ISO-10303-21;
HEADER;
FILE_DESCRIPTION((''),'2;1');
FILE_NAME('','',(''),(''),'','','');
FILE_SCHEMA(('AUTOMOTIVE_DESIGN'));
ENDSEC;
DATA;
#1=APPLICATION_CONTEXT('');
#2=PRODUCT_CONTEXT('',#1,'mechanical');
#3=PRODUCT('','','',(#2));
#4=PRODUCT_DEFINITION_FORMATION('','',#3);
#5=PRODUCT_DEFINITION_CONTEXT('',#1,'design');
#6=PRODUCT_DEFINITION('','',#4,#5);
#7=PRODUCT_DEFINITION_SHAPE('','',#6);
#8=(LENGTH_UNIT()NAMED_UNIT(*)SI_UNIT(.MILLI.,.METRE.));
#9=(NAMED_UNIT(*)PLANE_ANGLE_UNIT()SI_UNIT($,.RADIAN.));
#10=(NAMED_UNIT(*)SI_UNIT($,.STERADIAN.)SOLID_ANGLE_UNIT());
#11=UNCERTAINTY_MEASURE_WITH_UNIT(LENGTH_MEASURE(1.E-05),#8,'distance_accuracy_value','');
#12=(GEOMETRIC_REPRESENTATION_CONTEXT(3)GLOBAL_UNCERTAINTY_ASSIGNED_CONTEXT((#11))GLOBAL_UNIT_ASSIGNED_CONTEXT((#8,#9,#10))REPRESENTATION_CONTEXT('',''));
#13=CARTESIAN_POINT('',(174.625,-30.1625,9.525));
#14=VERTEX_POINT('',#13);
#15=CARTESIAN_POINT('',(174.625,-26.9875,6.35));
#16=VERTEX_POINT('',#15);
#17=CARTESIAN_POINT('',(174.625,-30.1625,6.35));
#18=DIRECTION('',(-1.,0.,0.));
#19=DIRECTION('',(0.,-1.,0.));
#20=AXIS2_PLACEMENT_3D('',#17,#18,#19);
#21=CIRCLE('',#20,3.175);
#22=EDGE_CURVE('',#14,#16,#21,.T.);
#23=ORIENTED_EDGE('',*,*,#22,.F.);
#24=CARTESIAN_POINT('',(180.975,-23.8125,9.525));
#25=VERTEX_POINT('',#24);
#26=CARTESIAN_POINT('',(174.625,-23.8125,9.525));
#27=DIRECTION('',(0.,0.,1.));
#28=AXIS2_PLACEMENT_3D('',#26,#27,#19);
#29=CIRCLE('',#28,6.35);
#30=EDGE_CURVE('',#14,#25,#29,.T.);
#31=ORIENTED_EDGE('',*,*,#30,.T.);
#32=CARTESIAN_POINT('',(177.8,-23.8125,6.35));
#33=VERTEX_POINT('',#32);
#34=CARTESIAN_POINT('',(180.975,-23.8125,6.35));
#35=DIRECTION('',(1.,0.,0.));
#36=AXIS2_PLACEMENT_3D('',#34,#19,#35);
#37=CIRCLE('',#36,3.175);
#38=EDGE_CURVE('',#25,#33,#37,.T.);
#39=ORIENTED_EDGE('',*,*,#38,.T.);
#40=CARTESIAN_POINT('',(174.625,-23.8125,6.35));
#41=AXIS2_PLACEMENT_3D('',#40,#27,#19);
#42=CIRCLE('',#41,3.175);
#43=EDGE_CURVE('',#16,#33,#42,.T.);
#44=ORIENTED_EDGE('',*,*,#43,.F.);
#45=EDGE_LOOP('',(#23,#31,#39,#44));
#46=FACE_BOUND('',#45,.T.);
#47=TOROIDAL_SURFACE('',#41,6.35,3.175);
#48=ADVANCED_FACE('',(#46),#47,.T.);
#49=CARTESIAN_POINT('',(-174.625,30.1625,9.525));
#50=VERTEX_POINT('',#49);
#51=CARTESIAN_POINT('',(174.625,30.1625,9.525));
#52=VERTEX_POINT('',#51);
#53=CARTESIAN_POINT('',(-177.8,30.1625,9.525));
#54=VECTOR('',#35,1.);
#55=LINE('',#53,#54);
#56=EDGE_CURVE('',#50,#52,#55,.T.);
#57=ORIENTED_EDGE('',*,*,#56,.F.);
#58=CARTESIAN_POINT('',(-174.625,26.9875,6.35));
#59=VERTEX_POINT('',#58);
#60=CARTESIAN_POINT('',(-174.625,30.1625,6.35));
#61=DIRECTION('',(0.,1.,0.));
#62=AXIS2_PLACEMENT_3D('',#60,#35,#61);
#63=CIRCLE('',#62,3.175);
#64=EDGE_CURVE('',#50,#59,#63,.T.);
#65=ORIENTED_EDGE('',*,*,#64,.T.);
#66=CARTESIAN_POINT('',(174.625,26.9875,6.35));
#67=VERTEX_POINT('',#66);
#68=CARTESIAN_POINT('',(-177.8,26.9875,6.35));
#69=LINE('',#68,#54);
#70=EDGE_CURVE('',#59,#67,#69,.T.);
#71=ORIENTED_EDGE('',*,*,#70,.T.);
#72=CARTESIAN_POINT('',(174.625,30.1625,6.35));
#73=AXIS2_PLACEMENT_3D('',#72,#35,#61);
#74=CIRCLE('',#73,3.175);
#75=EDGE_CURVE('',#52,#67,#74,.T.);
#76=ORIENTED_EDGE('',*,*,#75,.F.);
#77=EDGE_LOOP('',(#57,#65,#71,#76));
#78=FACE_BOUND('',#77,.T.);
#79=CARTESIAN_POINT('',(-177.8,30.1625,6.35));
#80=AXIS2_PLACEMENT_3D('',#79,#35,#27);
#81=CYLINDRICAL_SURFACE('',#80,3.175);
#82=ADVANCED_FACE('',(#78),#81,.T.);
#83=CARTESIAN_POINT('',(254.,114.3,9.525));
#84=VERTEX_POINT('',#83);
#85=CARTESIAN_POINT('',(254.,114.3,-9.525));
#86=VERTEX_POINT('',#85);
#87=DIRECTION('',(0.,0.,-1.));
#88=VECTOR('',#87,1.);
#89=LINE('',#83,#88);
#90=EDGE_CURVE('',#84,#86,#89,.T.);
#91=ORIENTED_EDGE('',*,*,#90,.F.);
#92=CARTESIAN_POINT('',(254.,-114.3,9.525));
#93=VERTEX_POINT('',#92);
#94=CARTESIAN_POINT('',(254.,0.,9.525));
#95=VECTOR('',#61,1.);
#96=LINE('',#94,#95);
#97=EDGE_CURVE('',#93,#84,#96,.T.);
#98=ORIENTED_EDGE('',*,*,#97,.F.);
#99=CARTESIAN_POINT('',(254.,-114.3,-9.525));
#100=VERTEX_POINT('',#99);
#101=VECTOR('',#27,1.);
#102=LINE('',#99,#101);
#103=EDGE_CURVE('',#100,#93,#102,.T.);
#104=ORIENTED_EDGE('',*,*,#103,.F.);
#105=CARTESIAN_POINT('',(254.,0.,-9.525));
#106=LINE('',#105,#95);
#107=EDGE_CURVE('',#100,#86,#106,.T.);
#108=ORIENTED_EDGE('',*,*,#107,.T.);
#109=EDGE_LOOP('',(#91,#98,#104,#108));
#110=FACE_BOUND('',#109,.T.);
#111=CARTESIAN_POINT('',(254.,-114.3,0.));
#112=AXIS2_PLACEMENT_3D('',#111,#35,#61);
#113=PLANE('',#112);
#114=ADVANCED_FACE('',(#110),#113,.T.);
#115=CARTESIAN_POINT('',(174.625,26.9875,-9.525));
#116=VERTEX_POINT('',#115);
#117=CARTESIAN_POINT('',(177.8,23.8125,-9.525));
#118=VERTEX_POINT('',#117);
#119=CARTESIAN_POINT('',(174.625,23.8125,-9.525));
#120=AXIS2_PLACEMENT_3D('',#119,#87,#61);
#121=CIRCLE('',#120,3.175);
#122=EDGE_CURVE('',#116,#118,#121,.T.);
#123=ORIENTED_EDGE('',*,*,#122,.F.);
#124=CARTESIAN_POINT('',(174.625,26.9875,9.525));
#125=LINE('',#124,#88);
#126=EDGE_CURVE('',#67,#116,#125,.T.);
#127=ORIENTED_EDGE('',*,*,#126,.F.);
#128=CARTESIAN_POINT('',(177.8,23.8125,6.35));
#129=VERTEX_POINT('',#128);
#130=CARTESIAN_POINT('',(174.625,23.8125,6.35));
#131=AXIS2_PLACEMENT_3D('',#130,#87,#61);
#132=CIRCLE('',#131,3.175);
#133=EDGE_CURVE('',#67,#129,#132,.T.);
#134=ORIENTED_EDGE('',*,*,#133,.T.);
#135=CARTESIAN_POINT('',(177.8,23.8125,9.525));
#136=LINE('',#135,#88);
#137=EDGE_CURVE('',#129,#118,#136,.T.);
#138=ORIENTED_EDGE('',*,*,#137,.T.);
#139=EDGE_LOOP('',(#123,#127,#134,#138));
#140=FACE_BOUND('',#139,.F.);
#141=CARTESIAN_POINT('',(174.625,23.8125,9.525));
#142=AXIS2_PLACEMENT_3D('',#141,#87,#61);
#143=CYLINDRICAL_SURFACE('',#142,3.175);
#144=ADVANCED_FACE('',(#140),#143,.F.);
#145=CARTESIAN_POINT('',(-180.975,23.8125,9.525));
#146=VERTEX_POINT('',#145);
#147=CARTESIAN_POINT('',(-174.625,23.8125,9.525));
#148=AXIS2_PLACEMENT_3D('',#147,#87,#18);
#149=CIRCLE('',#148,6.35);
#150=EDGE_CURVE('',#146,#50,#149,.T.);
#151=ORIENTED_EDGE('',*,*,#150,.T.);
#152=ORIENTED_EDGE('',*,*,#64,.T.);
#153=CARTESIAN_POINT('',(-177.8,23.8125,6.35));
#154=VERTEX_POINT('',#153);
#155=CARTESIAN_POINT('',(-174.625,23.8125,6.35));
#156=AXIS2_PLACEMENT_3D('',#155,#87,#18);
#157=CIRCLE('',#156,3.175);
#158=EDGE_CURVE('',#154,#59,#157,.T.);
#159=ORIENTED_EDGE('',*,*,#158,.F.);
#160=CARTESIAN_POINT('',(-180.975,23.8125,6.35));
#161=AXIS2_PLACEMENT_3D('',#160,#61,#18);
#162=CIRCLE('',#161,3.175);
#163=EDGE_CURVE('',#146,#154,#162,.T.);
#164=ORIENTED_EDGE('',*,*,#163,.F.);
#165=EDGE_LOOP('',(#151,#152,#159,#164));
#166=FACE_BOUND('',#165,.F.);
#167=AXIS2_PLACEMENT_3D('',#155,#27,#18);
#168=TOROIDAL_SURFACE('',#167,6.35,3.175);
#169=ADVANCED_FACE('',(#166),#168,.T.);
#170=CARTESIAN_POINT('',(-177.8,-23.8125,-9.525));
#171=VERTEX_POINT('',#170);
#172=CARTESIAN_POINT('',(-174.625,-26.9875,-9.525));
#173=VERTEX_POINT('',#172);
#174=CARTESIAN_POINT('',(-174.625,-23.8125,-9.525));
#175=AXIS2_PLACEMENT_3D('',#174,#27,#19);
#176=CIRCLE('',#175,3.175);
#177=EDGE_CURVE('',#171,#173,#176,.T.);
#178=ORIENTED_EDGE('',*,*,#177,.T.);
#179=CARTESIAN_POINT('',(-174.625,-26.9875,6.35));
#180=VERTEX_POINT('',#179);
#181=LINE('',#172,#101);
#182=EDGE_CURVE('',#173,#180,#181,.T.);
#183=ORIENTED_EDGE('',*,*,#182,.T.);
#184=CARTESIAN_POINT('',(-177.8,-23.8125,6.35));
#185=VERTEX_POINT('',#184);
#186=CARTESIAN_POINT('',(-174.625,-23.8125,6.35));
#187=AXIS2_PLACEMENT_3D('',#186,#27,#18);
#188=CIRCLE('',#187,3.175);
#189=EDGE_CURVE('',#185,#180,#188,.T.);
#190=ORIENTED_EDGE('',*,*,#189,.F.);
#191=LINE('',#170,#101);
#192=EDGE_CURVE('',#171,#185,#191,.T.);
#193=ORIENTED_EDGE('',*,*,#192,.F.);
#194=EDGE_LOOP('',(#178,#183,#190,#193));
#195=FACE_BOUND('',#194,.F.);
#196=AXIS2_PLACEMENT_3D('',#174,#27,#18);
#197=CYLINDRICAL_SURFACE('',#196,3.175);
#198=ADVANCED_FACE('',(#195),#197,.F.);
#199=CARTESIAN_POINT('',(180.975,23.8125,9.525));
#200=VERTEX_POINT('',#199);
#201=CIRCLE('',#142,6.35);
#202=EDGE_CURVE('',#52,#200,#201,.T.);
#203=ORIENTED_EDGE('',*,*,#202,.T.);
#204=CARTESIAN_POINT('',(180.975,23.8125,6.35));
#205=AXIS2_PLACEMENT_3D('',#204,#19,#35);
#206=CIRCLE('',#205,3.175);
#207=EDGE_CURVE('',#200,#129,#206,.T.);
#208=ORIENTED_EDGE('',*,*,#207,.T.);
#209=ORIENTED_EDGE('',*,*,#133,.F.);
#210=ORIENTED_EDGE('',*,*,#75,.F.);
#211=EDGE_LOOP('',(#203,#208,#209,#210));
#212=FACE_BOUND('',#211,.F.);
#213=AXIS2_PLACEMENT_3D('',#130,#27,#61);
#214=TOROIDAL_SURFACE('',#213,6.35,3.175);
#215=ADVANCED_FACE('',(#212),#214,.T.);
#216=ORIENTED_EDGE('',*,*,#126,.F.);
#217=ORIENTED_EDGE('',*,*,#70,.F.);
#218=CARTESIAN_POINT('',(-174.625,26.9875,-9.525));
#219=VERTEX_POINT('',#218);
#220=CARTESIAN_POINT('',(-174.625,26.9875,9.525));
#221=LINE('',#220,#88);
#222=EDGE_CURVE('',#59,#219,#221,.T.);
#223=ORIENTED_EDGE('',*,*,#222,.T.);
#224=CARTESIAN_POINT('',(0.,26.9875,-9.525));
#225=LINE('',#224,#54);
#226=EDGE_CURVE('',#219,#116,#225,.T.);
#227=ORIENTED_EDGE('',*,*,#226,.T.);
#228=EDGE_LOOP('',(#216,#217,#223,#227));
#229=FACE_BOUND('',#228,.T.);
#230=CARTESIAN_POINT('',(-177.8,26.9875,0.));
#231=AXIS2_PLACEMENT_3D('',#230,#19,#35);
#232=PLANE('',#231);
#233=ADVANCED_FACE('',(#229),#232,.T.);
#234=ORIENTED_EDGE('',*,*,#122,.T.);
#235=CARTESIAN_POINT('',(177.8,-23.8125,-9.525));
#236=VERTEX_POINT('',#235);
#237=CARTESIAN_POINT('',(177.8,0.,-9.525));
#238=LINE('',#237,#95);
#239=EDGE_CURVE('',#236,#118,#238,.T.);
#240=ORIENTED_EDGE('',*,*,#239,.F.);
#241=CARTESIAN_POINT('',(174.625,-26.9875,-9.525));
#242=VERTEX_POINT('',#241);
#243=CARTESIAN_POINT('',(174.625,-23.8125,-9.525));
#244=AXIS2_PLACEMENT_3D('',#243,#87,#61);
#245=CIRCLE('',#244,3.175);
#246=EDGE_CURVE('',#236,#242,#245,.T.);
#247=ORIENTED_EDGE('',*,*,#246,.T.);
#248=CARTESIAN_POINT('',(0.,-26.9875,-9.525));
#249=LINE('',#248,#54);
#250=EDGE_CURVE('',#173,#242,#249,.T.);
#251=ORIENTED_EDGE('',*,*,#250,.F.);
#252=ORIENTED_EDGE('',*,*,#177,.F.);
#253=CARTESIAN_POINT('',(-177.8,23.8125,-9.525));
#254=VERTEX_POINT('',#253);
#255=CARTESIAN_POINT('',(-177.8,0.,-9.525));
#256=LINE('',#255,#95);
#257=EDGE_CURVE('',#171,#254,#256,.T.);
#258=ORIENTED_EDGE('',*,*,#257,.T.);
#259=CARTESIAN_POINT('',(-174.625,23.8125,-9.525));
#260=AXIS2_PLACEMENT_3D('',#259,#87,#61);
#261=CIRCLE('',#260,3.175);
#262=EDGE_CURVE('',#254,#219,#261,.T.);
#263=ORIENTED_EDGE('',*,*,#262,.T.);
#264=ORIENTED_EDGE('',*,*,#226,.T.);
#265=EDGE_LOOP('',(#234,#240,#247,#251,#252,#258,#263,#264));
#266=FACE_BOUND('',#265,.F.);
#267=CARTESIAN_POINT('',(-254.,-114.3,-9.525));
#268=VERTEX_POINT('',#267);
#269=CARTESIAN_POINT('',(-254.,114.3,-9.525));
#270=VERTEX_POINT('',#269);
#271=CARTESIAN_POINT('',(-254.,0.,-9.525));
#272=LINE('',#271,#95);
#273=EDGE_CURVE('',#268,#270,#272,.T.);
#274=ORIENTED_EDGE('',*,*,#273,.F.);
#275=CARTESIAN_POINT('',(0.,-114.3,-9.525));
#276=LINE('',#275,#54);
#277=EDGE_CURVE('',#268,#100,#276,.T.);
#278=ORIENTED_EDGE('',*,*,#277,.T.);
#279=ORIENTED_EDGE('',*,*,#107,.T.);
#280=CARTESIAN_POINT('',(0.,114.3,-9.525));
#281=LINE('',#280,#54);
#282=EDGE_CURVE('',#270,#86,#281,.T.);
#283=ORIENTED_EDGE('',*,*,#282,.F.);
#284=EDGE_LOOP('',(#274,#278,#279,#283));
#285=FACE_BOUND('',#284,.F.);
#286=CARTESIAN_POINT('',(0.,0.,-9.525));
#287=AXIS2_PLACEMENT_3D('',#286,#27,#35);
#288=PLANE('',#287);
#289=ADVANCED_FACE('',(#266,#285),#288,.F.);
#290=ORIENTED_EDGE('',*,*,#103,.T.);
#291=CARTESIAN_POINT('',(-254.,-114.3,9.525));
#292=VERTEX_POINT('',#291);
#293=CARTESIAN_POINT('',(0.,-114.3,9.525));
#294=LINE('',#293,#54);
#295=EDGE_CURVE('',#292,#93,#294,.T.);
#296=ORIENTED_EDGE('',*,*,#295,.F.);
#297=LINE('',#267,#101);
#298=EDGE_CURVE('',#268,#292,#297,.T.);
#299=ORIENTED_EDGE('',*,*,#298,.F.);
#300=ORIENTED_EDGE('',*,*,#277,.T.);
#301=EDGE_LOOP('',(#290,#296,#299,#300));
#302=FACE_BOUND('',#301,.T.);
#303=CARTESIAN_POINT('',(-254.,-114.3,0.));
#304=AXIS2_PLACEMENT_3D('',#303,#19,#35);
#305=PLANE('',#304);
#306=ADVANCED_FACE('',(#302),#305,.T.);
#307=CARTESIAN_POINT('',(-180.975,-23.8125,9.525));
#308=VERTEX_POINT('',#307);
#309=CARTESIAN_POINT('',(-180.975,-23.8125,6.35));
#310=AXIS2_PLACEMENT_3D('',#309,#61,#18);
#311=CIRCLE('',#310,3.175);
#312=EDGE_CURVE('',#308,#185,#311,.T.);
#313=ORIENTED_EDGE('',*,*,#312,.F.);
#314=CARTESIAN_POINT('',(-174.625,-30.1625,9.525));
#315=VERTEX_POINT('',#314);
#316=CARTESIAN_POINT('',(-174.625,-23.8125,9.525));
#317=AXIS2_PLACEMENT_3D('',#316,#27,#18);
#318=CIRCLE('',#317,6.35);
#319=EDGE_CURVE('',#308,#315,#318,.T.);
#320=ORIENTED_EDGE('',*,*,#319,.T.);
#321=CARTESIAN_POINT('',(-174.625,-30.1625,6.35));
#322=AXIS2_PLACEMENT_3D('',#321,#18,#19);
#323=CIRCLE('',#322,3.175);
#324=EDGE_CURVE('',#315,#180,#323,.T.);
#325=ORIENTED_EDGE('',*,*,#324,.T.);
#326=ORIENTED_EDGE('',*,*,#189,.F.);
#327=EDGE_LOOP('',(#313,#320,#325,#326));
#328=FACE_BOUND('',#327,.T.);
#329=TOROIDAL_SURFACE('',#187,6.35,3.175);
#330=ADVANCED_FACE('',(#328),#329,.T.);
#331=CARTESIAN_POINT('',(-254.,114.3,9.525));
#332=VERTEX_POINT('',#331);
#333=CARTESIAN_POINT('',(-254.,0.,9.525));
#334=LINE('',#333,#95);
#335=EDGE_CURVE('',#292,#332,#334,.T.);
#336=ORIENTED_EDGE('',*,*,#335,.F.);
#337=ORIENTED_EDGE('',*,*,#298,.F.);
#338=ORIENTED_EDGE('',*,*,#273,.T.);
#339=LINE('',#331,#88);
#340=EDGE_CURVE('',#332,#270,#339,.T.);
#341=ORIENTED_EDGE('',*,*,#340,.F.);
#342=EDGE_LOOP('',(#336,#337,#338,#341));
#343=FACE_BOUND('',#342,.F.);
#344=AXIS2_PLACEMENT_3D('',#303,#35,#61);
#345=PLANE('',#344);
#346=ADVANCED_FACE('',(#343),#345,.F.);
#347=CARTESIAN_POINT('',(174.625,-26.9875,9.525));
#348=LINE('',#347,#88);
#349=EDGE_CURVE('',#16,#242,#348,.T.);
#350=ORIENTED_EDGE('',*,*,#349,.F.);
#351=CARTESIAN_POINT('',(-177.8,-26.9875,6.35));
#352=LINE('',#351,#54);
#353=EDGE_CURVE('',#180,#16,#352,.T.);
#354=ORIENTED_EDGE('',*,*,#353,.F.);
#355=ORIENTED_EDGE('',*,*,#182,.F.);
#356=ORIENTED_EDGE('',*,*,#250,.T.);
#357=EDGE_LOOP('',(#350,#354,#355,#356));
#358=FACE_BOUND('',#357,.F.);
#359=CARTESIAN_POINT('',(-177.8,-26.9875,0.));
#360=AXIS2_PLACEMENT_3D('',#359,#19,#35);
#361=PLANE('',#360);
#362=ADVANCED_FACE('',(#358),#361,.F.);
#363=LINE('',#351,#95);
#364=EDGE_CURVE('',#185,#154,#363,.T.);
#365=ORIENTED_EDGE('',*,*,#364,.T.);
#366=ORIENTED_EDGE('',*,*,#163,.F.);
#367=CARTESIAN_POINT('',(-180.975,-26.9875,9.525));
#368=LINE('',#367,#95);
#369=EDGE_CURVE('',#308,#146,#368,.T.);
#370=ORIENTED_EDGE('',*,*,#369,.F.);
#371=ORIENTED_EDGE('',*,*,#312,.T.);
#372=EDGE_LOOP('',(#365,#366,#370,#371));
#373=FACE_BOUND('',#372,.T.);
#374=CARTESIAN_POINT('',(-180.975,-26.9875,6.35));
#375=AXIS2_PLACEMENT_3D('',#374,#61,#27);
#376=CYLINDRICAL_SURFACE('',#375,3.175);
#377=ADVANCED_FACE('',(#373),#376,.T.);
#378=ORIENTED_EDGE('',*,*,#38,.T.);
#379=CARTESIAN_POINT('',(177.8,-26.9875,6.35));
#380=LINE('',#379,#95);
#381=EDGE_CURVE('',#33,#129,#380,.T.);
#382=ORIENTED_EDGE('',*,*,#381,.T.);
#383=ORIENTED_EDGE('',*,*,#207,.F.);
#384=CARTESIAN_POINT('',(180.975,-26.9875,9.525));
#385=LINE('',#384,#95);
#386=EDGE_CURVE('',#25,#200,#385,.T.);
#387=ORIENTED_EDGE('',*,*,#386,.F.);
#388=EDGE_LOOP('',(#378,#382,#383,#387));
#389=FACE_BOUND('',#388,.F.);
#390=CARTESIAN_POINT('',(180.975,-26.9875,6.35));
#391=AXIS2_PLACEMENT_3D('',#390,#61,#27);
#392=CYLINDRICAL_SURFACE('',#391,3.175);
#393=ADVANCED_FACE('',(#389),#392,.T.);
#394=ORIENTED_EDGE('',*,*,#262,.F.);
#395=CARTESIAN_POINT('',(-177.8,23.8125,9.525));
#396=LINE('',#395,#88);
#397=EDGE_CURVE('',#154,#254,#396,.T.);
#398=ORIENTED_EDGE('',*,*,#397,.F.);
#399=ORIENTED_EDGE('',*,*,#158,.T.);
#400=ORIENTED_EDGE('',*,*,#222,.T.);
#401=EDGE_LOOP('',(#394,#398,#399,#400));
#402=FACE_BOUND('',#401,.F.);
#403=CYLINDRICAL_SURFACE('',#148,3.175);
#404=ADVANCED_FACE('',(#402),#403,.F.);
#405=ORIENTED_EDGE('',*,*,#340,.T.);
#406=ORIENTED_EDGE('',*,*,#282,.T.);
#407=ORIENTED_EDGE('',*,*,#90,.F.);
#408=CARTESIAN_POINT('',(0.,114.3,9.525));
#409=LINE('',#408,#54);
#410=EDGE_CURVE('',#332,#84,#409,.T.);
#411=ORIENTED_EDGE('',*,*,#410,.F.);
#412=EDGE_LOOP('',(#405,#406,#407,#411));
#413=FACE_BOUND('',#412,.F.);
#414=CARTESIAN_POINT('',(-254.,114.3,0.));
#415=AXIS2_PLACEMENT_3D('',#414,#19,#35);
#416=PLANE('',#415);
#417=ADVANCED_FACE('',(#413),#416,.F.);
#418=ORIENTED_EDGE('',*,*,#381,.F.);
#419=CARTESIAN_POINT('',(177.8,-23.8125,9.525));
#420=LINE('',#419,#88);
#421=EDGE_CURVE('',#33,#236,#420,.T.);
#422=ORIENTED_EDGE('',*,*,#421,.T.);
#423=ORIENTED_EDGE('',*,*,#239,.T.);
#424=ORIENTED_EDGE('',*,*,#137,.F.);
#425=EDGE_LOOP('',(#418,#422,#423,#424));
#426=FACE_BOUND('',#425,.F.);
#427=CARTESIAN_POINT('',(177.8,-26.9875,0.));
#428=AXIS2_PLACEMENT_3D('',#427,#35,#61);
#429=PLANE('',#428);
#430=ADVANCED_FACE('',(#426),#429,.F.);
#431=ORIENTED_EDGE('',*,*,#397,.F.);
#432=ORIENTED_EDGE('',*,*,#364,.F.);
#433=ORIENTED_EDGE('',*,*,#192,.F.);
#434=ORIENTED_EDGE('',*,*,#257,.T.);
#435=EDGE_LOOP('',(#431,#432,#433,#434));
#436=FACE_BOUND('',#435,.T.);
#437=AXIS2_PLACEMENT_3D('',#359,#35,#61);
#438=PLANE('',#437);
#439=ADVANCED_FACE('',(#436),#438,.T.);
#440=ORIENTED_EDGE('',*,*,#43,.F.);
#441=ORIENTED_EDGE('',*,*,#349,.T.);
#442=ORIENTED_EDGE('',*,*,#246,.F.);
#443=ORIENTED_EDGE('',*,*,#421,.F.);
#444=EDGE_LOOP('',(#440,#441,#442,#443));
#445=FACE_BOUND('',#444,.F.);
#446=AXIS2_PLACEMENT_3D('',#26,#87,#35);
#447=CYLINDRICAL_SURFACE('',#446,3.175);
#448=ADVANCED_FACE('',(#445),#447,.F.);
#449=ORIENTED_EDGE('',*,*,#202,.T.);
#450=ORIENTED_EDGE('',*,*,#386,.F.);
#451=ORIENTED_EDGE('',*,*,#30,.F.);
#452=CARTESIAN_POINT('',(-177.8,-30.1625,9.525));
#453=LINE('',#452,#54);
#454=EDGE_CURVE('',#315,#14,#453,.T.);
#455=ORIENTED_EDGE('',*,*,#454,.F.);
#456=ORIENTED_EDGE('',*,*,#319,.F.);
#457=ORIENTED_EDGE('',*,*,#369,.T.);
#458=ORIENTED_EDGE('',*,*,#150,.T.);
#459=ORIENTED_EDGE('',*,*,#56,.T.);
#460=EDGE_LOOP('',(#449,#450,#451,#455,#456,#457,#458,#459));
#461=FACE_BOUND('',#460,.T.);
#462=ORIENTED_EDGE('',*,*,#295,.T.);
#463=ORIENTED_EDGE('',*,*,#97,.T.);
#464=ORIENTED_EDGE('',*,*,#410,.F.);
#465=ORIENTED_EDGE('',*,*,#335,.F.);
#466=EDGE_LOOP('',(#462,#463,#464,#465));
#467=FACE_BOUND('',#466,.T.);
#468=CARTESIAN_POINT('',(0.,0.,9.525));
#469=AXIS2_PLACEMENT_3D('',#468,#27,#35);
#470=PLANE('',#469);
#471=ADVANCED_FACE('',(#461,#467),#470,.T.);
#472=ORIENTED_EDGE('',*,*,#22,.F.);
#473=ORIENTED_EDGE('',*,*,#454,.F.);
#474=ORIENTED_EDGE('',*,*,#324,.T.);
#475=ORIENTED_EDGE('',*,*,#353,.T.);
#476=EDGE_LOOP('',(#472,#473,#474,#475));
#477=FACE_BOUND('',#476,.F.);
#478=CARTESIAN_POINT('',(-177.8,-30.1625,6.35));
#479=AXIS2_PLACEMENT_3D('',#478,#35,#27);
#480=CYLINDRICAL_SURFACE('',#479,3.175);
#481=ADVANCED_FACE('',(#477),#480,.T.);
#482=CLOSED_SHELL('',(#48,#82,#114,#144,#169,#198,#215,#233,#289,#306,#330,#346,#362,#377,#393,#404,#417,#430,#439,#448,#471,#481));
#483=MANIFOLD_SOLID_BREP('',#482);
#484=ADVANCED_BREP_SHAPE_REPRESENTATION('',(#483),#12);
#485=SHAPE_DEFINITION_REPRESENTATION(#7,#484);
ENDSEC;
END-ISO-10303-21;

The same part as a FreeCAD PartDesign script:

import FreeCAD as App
import Part
import Sketcher
from FreeCAD import Vector
Q = App.Units.Quantity


def edges_at(feature, points):
    """Names of the edges that pass closest to the given points."""
    edges = feature.Shape.Edges
    near = lambda p: min(range(len(edges)), key=lambda i: edges[i].distToShape(Part.Vertex(*p))[0])
    return sorted({f"Edge{near(p) + 1}" for p in points})


def add_polygon(sketch, points):
    """Adds a closed chain of lines whose ends are joined by coincident constraints."""
    first, n = sketch.GeometryCount, len(points)
    for a, b in zip(points, points[1:] + points[:1]):
        sketch.addGeometry(Part.LineSegment(App.Vector(*a, 0), App.Vector(*b, 0)), False)
    for i in range(n):
        sketch.addConstraint(Sketcher.Constraint("Coincident", first + i, 2, first + (i + 1) % n, 1))

doc = App.newDocument("Part")
body = doc.addObject("PartDesign::Body", "Body")

sketch1 = body.newObject("Sketcher::SketchObject", "Sketch")
sketch1.AttachmentSupport = (doc.getObject("XY_Plane"), [""])
sketch1.MapMode = "FlatFace"
add_polygon(sketch1, [(-254, 114), (-254, -114), (254, -114), (254, 114)])
add_polygon(sketch1, [(178, -27), (-178, -27), (-178, 27), (178, 27)])
sketch1.addConstraint([
    Sketcher.Constraint("Vertical", 0),
    Sketcher.Constraint("Horizontal", 1),
    Sketcher.Constraint("Vertical", 2),
    Sketcher.Constraint("Horizontal", 3),
    Sketcher.Constraint("Horizontal", 4),
    Sketcher.Constraint("Vertical", 5),
    Sketcher.Constraint("Horizontal", 6),
    Sketcher.Constraint("Vertical", 7),
    Sketcher.Constraint("Symmetric", 0, 2, 2, 2, -1, 1),
    Sketcher.Constraint("Symmetric", 4, 2, 6, 2, -1, 1),
    Sketcher.Constraint("DistanceX", 1, 1, 1, 2, Q("20 in")),
    Sketcher.Constraint("DistanceX", 4, 2, 4, 1, Q("14 in")),
    Sketcher.Constraint("DistanceY", 0, 2, 0, 1, Q("9 in")),
    Sketcher.Constraint("DistanceY", 5, 1, 5, 2, Q("2.125 in")),
])
pad1 = body.newObject("PartDesign::Pad", "Pad")
pad1.Profile = sketch1
pad1.Length = Q("0.75 in")
pad1.Midplane = True
doc.recompute()

fillet = body.newObject("PartDesign::Fillet", "Fillet")
fillet.Base = (pad1, edges_at(pad1, [
    (-177.8, 0, 9.525),
    (0, 26.988, 9.525),
    (0, -26.988, 9.525),
    (177.8, 0, 9.525),
    (177.8, 26.988, 0),
    (-177.8, 26.988, 0),
    (-177.8, -26.988, 0),
    (177.8, -26.988, 0),
]))
fillet.Radius = Q("0.125 in")

doc.recompute()
